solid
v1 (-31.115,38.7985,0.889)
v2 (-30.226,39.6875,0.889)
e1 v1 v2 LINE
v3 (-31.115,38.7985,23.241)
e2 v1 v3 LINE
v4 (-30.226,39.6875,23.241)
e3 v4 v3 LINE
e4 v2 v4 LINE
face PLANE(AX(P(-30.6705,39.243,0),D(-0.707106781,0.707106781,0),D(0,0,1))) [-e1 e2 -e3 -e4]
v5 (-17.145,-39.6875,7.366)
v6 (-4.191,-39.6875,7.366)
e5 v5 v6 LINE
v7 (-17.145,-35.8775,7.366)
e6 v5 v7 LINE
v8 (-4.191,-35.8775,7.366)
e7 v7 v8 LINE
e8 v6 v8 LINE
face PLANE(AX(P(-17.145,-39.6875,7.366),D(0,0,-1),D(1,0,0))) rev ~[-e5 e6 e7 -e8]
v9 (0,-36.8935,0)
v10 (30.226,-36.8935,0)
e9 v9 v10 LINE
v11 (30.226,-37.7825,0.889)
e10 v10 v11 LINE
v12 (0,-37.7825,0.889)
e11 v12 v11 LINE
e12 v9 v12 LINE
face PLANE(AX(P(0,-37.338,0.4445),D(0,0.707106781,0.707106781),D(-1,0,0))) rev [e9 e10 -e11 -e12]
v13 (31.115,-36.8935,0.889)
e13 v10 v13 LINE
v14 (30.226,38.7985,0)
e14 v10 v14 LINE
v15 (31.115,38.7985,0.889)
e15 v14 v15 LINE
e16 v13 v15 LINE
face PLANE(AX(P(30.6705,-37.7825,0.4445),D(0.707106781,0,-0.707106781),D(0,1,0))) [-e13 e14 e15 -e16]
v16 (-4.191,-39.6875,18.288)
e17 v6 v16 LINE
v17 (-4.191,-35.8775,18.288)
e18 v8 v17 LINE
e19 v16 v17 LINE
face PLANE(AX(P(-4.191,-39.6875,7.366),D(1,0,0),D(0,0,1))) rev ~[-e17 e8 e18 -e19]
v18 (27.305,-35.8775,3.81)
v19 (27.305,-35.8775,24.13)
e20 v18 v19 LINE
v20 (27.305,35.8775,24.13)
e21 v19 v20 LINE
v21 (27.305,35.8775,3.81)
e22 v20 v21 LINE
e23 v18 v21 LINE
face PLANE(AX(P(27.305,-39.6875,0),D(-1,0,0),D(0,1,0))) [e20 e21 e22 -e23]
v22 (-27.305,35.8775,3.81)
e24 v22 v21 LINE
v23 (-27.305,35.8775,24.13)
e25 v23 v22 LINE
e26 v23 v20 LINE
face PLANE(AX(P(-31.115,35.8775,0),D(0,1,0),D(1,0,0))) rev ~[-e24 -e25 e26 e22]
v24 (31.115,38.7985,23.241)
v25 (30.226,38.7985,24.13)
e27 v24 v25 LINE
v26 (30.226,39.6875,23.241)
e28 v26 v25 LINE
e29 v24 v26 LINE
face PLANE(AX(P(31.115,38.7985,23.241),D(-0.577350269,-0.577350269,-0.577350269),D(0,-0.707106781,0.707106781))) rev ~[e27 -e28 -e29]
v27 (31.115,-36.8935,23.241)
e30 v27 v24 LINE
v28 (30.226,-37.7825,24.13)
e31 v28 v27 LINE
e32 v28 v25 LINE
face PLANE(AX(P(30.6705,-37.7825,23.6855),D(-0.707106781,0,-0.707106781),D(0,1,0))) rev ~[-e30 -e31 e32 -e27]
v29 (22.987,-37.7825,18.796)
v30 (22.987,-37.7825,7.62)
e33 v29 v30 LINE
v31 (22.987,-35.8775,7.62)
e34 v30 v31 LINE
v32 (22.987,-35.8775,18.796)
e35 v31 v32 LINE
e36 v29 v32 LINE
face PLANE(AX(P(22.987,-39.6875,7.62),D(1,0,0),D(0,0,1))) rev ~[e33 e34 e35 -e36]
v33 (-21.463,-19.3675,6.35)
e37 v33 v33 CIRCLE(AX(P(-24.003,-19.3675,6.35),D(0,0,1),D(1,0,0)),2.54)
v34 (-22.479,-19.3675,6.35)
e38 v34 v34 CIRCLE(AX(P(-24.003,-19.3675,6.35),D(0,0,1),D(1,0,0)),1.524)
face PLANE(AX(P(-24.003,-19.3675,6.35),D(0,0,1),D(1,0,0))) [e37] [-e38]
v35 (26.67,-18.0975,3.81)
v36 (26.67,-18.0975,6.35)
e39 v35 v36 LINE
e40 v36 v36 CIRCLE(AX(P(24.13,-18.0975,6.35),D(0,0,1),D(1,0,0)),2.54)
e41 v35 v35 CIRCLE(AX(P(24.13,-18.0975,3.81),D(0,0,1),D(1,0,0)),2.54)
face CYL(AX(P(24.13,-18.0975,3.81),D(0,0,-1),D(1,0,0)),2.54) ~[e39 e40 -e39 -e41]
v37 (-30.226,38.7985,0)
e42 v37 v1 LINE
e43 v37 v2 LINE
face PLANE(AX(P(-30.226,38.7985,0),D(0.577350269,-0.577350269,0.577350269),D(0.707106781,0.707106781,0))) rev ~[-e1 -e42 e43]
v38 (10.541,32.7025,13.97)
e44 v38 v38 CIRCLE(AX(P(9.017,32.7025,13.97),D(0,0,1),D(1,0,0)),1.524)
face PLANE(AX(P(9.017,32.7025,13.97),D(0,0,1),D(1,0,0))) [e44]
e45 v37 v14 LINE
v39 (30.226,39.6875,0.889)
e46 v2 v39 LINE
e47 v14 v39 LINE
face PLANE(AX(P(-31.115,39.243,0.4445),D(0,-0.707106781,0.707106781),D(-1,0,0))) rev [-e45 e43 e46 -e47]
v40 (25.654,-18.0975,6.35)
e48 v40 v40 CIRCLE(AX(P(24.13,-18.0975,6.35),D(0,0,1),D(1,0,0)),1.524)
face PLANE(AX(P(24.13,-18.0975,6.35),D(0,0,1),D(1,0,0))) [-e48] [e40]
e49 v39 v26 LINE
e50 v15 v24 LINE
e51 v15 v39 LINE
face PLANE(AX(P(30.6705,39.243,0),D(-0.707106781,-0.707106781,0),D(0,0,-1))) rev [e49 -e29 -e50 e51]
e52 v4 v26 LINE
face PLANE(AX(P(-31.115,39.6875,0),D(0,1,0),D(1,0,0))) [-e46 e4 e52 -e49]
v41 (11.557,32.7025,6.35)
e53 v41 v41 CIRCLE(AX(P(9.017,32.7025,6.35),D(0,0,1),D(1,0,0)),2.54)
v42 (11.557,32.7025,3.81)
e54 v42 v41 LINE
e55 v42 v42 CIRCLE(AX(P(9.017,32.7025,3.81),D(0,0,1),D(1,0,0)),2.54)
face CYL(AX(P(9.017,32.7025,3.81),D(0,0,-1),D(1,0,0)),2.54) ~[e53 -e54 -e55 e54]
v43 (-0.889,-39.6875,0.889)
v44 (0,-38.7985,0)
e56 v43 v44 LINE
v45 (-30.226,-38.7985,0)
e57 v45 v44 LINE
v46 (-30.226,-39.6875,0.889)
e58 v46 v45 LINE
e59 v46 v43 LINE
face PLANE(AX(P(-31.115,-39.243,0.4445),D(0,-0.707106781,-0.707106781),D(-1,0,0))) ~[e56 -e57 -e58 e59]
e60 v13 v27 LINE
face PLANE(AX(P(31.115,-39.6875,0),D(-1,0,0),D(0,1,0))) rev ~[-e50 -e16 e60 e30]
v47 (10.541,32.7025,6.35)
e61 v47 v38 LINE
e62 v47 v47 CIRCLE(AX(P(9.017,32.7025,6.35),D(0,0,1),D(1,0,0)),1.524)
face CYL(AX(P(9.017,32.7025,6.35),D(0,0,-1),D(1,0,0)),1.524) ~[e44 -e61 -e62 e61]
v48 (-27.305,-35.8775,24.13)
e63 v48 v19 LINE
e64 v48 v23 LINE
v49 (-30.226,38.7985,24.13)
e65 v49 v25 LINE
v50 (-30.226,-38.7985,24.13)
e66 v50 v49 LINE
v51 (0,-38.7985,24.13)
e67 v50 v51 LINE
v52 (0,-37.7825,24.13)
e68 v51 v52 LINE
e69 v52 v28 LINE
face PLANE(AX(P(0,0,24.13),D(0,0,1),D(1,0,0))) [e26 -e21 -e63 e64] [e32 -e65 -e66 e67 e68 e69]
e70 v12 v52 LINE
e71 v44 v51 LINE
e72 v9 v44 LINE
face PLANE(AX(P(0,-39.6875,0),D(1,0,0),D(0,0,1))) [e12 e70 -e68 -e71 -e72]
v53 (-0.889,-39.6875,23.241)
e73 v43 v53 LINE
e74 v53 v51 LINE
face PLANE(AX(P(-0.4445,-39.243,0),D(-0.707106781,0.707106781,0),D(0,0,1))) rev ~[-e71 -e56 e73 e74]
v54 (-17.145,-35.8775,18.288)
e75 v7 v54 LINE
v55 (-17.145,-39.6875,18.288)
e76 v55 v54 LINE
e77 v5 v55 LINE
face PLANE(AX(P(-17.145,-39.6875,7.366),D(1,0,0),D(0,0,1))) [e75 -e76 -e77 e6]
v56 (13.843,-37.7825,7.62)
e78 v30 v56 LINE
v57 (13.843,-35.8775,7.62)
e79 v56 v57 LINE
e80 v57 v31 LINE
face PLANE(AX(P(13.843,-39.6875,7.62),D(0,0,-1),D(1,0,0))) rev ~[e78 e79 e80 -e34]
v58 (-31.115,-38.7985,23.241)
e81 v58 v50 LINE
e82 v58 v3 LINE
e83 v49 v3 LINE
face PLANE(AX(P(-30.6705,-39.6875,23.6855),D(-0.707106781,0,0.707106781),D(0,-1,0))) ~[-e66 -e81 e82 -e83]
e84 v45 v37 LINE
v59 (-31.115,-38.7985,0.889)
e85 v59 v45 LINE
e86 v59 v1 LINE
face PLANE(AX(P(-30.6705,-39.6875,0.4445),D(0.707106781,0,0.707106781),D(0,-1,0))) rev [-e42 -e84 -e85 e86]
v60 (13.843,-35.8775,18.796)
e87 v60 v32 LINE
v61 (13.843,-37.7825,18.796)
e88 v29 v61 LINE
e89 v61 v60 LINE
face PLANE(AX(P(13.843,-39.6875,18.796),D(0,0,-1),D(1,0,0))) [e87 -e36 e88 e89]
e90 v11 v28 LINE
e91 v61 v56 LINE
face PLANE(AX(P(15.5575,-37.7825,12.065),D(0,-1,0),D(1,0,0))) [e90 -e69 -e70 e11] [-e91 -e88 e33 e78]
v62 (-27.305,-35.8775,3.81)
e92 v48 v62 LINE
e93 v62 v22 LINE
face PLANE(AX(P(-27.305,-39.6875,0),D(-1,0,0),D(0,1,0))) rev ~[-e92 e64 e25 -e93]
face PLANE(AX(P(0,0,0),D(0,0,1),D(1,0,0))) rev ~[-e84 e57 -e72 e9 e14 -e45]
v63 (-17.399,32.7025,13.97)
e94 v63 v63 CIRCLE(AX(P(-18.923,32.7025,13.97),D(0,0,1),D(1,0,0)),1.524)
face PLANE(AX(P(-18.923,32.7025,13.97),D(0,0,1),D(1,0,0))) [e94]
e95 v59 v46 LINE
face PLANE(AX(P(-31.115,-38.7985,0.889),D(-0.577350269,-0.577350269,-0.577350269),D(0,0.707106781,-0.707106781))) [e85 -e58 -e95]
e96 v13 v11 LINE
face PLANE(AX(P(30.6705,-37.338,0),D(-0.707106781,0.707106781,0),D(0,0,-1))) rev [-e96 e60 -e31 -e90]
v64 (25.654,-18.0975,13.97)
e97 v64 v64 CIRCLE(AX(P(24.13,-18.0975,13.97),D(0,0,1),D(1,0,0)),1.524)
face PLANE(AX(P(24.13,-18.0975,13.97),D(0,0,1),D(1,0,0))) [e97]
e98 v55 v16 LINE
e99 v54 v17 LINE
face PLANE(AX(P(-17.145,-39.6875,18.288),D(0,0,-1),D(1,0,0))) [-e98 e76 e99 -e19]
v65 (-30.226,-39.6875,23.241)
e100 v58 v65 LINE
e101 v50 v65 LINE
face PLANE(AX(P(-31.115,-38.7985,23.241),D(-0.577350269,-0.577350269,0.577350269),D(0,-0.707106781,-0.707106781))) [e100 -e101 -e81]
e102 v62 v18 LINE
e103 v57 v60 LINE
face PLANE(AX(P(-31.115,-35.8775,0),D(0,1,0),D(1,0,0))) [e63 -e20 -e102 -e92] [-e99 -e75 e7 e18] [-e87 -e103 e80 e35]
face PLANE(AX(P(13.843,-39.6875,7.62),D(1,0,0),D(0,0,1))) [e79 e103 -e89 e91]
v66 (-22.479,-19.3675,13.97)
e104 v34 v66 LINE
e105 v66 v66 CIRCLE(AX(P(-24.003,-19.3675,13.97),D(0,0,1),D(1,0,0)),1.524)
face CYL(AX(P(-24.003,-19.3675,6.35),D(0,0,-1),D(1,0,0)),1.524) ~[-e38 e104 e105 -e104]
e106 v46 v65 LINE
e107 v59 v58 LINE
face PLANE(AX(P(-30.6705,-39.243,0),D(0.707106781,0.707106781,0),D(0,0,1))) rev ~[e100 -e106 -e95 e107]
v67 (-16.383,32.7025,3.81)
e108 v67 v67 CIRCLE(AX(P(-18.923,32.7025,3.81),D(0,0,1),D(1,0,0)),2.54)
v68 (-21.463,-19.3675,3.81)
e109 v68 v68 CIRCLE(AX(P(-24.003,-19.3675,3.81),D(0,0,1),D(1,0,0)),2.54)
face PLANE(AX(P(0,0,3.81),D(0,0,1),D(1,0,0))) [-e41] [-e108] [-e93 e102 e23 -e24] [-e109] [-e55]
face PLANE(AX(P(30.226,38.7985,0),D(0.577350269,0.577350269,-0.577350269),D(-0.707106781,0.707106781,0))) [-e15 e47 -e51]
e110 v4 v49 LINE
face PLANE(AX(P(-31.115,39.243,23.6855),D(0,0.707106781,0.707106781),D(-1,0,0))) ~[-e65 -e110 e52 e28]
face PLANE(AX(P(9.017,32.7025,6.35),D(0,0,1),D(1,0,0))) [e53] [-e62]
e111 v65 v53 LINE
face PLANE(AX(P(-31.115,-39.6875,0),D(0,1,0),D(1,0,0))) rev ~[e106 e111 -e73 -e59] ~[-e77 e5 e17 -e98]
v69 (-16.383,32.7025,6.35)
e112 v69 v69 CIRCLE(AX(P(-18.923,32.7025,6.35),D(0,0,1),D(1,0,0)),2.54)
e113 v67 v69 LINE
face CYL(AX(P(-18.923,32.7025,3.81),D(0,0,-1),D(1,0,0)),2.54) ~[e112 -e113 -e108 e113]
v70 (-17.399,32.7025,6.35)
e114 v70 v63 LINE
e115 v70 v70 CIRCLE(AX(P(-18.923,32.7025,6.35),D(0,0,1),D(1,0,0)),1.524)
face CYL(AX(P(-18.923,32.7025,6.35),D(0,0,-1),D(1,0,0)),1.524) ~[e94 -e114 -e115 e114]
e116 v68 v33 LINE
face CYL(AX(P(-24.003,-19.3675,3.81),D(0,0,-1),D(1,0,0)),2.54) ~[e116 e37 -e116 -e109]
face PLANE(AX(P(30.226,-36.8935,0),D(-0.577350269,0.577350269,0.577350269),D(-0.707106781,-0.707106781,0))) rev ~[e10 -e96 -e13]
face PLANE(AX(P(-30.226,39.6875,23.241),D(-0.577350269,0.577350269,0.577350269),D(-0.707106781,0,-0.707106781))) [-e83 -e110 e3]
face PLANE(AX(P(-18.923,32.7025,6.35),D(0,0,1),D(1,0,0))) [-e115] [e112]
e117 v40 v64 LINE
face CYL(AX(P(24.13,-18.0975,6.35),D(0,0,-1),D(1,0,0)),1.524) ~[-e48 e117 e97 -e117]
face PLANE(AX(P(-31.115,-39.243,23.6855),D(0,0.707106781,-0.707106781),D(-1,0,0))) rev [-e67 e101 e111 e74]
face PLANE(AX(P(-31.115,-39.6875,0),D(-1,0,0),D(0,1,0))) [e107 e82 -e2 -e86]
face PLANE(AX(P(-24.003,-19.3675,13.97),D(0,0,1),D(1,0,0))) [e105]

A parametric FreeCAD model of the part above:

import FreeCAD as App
import Part
import Sketcher
from FreeCAD import Vector
Q = App.Units.Quantity


def edges_at(feature, points):
    """Names of the edges that pass closest to the given points."""
    edges = feature.Shape.Edges
    near = lambda p: min(range(len(edges)), key=lambda i: edges[i].distToShape(Part.Vertex(*p))[0])
    return sorted({f"Edge{near(p) + 1}" for p in points})


def faces_at(feature, points):
    """Names of the faces that lie closest to the given points."""
    faces = feature.Shape.Faces
    near = lambda p: min(range(len(faces)), key=lambda i: faces[i].distToShape(Part.Vertex(*p))[0])
    return sorted({f"Face{near(p) + 1}" for p in points})


def add_polygon(sketch, points):
    """Adds a closed chain of lines whose ends are joined by coincident constraints."""
    first, n = sketch.GeometryCount, len(points)
    for a, b in zip(points, points[1:] + points[:1]):
        sketch.addGeometry(Part.LineSegment(App.Vector(*a, 0), App.Vector(*b, 0)), False)
    for i in range(n):
        sketch.addConstraint(Sketcher.Constraint("Coincident", first + i, 2, first + (i + 1) % n, 1))

doc = App.newDocument("Part")
body = doc.addObject("PartDesign::Body", "Body")

sketch1 = doc.addObject("Sketcher::SketchObject", "Sketch")
body.addObject(sketch1)
sketch1.AttachmentSupport = (doc.XY_Plane, [""])
sketch1.MapMode = "FlatFace"
add_polygon(sketch1, [(-31, 40), (-31, -40), (31, -40), (31, 40)])
sketch1.addConstraint(Sketcher.Constraint("Vertical", 0))
sketch1.addConstraint(Sketcher.Constraint("Horizontal", 1))
sketch1.addConstraint(Sketcher.Constraint("Vertical", 2))
sketch1.addConstraint(Sketcher.Constraint("Horizontal", 3))
sketch1.addConstraint(Sketcher.Constraint("Symmetric", 0, 2, 2, 2, -1, 1))
sketch1.addConstraint(Sketcher.Constraint("DistanceX", 1, 1, 1, 2, Q("2.45 in")))
sketch1.addConstraint(Sketcher.Constraint("DistanceY", 0, 2, 0, 1, Q("3.125 in")))
pad1 = doc.addObject("PartDesign::Pad", "Pad")
body.addObject(pad1)
pad1.Profile = sketch1
pad1.Length = Q("0.95 in")
doc.recompute()

thickness = doc.addObject("PartDesign::Thickness", "Thickness")
body.addObject(thickness)
thickness.Base = (pad1, faces_at(pad1, [(0, 0, 24.13)]))
thickness.Value = Q("0.15 in")
thickness.Reversed = True
thickness.Join = "Arc"

sketch2 = doc.addObject("Sketcher::SketchObject", "Sketch001")
body.addObject(sketch2)
sketch2.AttachmentSupport = (doc.XY_Plane, [""])
sketch2.MapMode = "FlatFace"
sketch2.AttachmentOffset = App.Placement(Vector(0, 0, 0.15 * 25.4), App.Rotation())
sketch2.addGeometry(Part.Circle(Vector(9, 32.7, 0), Vector(0, 0, 1), 2.5), False)
sketch2.addGeometry(Part.Circle(Vector(-18.9, 32.7, 0), Vector(0, 0, 1), 2.5), False)
sketch2.addGeometry(Part.Circle(Vector(-24, -19.4, 0), Vector(0, 0, 1), 2.5), False)
sketch2.addGeometry(Part.Circle(Vector(24.1, -18.1, 0), Vector(0, 0, 1), 2.5), False)
sketch2.addConstraint(Sketcher.Constraint("Equal", 0, 1))
sketch2.addConstraint(Sketcher.Constraint("Equal", 1, 2))
sketch2.addConstraint(Sketcher.Constraint("Equal", 2, 3))
sketch2.addConstraint(Sketcher.Constraint("Horizontal", 0, 3, 1, 3))
sketch2.addConstraint(Sketcher.Constraint("Diameter", 0, Q("0.2 in")))
sketch2.addConstraint(Sketcher.Constraint("DistanceY", 3, 3, 0, 3, Q("2 in")))
sketch2.addConstraint(Sketcher.Constraint("DistanceX", 1, 3, 0, 3, Q("1.1 in")))
sketch2.addConstraint(Sketcher.Constraint("DistanceX", 2, 3, 1, 3, Q("0.2 in")))
sketch2.addConstraint(Sketcher.Constraint("DistanceX", -1, 1, 3, 3, Q("0.95 in")))
sketch2.addConstraint(Sketcher.Constraint("DistanceY", 2, 3, 1, 3, Q("2.05 in")))
sketch2.addConstraint(Sketcher.Constraint("DistanceX", -1, 1, 0, 3, Q("0.355 in")))
sketch2.addConstraint(Sketcher.Constraint("DistanceY", -1, 1, 0, 3, Q("1.2875 in")))
pad2 = doc.addObject("PartDesign::Pad", "Pad001")
body.addObject(pad2)
pad2.Profile = sketch2
pad2.Length = Q("0.1 in")

sketch3 = doc.addObject("Sketcher::SketchObject", "Sketch002")
body.addObject(sketch3)
sketch3.AttachmentSupport = (doc.XY_Plane, [""])
sketch3.MapMode = "FlatFace"
sketch3.AttachmentOffset = App.Placement(Vector(0, 0, 0.25 * 25.4), App.Rotation())
sketch3.addGeometry(Part.Circle(Vector(9, 32.7, 0), Vector(0, 0, 1), 1.5), False)
sketch3.addGeometry(Part.Circle(Vector(-18.9, 32.7, 0), Vector(0, 0, 1), 1.5), False)
sketch3.addGeometry(Part.Circle(Vector(-24, -19.4, 0), Vector(0, 0, 1), 1.5), False)
sketch3.addGeometry(Part.Circle(Vector(24.1, -18.1, 0), Vector(0, 0, 1), 1.5), False)
sketch3.addConstraint(Sketcher.Constraint("Equal", 0, 1))
sketch3.addConstraint(Sketcher.Constraint("Equal", 1, 2))
sketch3.addConstraint(Sketcher.Constraint("Equal", 2, 3))
sketch3.addConstraint(Sketcher.Constraint("Horizontal", 0, 3, 1, 3))
sketch3.addConstraint(Sketcher.Constraint("Diameter", 0, Q("0.12 in")))
sketch3.addConstraint(Sketcher.Constraint("DistanceY", 3, 3, 0, 3, Q("2 in")))
sketch3.addConstraint(Sketcher.Constraint("DistanceX", 1, 3, 0, 3, Q("1.1 in")))
sketch3.addConstraint(Sketcher.Constraint("DistanceX", 2, 3, 1, 3, Q("0.2 in")))
sketch3.addConstraint(Sketcher.Constraint("DistanceX", -1, 1, 3, 3, Q("0.95 in")))
sketch3.addConstraint(Sketcher.Constraint("DistanceY", 2, 3, 1, 3, Q("2.05 in")))
sketch3.addConstraint(Sketcher.Constraint("DistanceX", -1, 1, 0, 3, Q("0.355 in")))
sketch3.addConstraint(Sketcher.Constraint("DistanceY", -1, 1, 0, 3, Q("1.2875 in")))
pad3 = doc.addObject("PartDesign::Pad", "Pad002")
body.addObject(pad3)
pad3.Profile = sketch3
pad3.Length = Q("0.3 in")

sketch4 = doc.addObject("Sketcher::SketchObject", "Sketch003")
body.addObject(sketch4)
sketch4.AttachmentSupport = (doc.XZ_Plane, [""])
sketch4.MapMode = "FlatFace"
sketch4.AttachmentOffset = App.Placement(Vector(0, 0, 1.5625 * 25.4), App.Rotation())
add_polygon(sketch4, [(-17, 18), (-17, 7), (-4, 7), (-4, 18)])
add_polygon(sketch4, [(14, 19), (14, 8), (23, 8), (23, 19)])
sketch4.addConstraint(Sketcher.Constraint("Vertical", 0))
sketch4.addConstraint(Sketcher.Constraint("Horizontal", 1))
sketch4.addConstraint(Sketcher.Constraint("Vertical", 2))
sketch4.addConstraint(Sketcher.Constraint("Horizontal", 3))
sketch4.addConstraint(Sketcher.Constraint("Vertical", 4))
sketch4.addConstraint(Sketcher.Constraint("Horizontal", 5))
sketch4.addConstraint(Sketcher.Constraint("Vertical", 6))
sketch4.addConstraint(Sketcher.Constraint("Horizontal", 7))
sketch4.addConstraint(Sketcher.Constraint("DistanceX", 1, 1, 1, 2, Q("0.51 in")))
sketch4.addConstraint(Sketcher.Constraint("DistanceX", 5, 1, 5, 2, Q("0.36 in")))
sketch4.addConstraint(Sketcher.Constraint("DistanceY", 0, 2, 0, 1, Q("0.43 in")))
sketch4.addConstraint(Sketcher.Constraint("DistanceY", 4, 2, 4, 1, Q("0.44 in")))
sketch4.addConstraint(Sketcher.Constraint("DistanceY", -1, 1, 4, 2, Q("0.3 in")))
sketch4.addConstraint(Sketcher.Constraint("DistanceY", -1, 1, 0, 2, Q("0.29 in")))
sketch4.addConstraint(Sketcher.Constraint("DistanceX", 1, 2, 4, 2, Q("0.71 in")))
sketch4.addConstraint(Sketcher.Constraint("DistanceX", 0, 2, -1, 1, Q("0.675 in")))
pocket1 = doc.addObject("PartDesign::Pocket", "Pocket")
body.addObject(pocket1)
pocket1.Profile = sketch4
pocket1.Length = Q("0.15 in")

sketch5 = doc.addObject("Sketcher::SketchObject", "Sketch004")
body.addObject(sketch5)
sketch5.AttachmentSupport = (doc.XZ_Plane, [""])
sketch5.MapMode = "FlatFace"
sketch5.AttachmentOffset = App.Placement(Vector(0, 0, 1.5625 * 25.4), App.Rotation())
add_polygon(sketch5, [(0, 24), (0, 0), (31, 0), (31, 24)])
sketch5.addConstraint(Sketcher.Constraint("Vertical", 0))
sketch5.addConstraint(Sketcher.Constraint("Horizontal", 1))
sketch5.addConstraint(Sketcher.Constraint("Vertical", 2))
sketch5.addConstraint(Sketcher.Constraint("Horizontal", 3))
sketch5.addConstraint(Sketcher.Constraint("Coincident", 0, 2, -1, 1))
sketch5.addConstraint(Sketcher.Constraint("DistanceY", 0, 2, 0, 1, Q("0.95 in")))
sketch5.addConstraint(Sketcher.Constraint("DistanceX", 1, 1, 1, 2, Q("1.225 in")))
pocket2 = doc.addObject("PartDesign::Pocket", "Pocket001")
body.addObject(pocket2)
pocket2.Profile = sketch5
pocket2.Length = Q("0.075 in")
doc.recompute()

chamfer = doc.addObject("PartDesign::Chamfer", "Chamfer")
body.addObject(chamfer)
chamfer.Base = (pocket2, edges_at(pocket2, [
    (-15.557, -39.688, 24.13),
    (-31.115, 0, 24.13),
    (0, 39.688, 24.13),
    (31.115, 39.688, 12.065),
    (31.115, 0.953, 24.13),
    (31.115, -37.782, 12.065),
    (31.115, 0.953, 0),
    (15.557, -37.782, 0),
    (0, -39.688, 12.065),
    (-15.557, -39.688, 0),
    (-31.115, -39.688, 12.065),
    (-31.115, 39.688, 12.065),
    (-31.115, 0, 0),
    (0, 39.688, 0),
]))
chamfer.Size = Q("0.035 in")

doc.recompute()
